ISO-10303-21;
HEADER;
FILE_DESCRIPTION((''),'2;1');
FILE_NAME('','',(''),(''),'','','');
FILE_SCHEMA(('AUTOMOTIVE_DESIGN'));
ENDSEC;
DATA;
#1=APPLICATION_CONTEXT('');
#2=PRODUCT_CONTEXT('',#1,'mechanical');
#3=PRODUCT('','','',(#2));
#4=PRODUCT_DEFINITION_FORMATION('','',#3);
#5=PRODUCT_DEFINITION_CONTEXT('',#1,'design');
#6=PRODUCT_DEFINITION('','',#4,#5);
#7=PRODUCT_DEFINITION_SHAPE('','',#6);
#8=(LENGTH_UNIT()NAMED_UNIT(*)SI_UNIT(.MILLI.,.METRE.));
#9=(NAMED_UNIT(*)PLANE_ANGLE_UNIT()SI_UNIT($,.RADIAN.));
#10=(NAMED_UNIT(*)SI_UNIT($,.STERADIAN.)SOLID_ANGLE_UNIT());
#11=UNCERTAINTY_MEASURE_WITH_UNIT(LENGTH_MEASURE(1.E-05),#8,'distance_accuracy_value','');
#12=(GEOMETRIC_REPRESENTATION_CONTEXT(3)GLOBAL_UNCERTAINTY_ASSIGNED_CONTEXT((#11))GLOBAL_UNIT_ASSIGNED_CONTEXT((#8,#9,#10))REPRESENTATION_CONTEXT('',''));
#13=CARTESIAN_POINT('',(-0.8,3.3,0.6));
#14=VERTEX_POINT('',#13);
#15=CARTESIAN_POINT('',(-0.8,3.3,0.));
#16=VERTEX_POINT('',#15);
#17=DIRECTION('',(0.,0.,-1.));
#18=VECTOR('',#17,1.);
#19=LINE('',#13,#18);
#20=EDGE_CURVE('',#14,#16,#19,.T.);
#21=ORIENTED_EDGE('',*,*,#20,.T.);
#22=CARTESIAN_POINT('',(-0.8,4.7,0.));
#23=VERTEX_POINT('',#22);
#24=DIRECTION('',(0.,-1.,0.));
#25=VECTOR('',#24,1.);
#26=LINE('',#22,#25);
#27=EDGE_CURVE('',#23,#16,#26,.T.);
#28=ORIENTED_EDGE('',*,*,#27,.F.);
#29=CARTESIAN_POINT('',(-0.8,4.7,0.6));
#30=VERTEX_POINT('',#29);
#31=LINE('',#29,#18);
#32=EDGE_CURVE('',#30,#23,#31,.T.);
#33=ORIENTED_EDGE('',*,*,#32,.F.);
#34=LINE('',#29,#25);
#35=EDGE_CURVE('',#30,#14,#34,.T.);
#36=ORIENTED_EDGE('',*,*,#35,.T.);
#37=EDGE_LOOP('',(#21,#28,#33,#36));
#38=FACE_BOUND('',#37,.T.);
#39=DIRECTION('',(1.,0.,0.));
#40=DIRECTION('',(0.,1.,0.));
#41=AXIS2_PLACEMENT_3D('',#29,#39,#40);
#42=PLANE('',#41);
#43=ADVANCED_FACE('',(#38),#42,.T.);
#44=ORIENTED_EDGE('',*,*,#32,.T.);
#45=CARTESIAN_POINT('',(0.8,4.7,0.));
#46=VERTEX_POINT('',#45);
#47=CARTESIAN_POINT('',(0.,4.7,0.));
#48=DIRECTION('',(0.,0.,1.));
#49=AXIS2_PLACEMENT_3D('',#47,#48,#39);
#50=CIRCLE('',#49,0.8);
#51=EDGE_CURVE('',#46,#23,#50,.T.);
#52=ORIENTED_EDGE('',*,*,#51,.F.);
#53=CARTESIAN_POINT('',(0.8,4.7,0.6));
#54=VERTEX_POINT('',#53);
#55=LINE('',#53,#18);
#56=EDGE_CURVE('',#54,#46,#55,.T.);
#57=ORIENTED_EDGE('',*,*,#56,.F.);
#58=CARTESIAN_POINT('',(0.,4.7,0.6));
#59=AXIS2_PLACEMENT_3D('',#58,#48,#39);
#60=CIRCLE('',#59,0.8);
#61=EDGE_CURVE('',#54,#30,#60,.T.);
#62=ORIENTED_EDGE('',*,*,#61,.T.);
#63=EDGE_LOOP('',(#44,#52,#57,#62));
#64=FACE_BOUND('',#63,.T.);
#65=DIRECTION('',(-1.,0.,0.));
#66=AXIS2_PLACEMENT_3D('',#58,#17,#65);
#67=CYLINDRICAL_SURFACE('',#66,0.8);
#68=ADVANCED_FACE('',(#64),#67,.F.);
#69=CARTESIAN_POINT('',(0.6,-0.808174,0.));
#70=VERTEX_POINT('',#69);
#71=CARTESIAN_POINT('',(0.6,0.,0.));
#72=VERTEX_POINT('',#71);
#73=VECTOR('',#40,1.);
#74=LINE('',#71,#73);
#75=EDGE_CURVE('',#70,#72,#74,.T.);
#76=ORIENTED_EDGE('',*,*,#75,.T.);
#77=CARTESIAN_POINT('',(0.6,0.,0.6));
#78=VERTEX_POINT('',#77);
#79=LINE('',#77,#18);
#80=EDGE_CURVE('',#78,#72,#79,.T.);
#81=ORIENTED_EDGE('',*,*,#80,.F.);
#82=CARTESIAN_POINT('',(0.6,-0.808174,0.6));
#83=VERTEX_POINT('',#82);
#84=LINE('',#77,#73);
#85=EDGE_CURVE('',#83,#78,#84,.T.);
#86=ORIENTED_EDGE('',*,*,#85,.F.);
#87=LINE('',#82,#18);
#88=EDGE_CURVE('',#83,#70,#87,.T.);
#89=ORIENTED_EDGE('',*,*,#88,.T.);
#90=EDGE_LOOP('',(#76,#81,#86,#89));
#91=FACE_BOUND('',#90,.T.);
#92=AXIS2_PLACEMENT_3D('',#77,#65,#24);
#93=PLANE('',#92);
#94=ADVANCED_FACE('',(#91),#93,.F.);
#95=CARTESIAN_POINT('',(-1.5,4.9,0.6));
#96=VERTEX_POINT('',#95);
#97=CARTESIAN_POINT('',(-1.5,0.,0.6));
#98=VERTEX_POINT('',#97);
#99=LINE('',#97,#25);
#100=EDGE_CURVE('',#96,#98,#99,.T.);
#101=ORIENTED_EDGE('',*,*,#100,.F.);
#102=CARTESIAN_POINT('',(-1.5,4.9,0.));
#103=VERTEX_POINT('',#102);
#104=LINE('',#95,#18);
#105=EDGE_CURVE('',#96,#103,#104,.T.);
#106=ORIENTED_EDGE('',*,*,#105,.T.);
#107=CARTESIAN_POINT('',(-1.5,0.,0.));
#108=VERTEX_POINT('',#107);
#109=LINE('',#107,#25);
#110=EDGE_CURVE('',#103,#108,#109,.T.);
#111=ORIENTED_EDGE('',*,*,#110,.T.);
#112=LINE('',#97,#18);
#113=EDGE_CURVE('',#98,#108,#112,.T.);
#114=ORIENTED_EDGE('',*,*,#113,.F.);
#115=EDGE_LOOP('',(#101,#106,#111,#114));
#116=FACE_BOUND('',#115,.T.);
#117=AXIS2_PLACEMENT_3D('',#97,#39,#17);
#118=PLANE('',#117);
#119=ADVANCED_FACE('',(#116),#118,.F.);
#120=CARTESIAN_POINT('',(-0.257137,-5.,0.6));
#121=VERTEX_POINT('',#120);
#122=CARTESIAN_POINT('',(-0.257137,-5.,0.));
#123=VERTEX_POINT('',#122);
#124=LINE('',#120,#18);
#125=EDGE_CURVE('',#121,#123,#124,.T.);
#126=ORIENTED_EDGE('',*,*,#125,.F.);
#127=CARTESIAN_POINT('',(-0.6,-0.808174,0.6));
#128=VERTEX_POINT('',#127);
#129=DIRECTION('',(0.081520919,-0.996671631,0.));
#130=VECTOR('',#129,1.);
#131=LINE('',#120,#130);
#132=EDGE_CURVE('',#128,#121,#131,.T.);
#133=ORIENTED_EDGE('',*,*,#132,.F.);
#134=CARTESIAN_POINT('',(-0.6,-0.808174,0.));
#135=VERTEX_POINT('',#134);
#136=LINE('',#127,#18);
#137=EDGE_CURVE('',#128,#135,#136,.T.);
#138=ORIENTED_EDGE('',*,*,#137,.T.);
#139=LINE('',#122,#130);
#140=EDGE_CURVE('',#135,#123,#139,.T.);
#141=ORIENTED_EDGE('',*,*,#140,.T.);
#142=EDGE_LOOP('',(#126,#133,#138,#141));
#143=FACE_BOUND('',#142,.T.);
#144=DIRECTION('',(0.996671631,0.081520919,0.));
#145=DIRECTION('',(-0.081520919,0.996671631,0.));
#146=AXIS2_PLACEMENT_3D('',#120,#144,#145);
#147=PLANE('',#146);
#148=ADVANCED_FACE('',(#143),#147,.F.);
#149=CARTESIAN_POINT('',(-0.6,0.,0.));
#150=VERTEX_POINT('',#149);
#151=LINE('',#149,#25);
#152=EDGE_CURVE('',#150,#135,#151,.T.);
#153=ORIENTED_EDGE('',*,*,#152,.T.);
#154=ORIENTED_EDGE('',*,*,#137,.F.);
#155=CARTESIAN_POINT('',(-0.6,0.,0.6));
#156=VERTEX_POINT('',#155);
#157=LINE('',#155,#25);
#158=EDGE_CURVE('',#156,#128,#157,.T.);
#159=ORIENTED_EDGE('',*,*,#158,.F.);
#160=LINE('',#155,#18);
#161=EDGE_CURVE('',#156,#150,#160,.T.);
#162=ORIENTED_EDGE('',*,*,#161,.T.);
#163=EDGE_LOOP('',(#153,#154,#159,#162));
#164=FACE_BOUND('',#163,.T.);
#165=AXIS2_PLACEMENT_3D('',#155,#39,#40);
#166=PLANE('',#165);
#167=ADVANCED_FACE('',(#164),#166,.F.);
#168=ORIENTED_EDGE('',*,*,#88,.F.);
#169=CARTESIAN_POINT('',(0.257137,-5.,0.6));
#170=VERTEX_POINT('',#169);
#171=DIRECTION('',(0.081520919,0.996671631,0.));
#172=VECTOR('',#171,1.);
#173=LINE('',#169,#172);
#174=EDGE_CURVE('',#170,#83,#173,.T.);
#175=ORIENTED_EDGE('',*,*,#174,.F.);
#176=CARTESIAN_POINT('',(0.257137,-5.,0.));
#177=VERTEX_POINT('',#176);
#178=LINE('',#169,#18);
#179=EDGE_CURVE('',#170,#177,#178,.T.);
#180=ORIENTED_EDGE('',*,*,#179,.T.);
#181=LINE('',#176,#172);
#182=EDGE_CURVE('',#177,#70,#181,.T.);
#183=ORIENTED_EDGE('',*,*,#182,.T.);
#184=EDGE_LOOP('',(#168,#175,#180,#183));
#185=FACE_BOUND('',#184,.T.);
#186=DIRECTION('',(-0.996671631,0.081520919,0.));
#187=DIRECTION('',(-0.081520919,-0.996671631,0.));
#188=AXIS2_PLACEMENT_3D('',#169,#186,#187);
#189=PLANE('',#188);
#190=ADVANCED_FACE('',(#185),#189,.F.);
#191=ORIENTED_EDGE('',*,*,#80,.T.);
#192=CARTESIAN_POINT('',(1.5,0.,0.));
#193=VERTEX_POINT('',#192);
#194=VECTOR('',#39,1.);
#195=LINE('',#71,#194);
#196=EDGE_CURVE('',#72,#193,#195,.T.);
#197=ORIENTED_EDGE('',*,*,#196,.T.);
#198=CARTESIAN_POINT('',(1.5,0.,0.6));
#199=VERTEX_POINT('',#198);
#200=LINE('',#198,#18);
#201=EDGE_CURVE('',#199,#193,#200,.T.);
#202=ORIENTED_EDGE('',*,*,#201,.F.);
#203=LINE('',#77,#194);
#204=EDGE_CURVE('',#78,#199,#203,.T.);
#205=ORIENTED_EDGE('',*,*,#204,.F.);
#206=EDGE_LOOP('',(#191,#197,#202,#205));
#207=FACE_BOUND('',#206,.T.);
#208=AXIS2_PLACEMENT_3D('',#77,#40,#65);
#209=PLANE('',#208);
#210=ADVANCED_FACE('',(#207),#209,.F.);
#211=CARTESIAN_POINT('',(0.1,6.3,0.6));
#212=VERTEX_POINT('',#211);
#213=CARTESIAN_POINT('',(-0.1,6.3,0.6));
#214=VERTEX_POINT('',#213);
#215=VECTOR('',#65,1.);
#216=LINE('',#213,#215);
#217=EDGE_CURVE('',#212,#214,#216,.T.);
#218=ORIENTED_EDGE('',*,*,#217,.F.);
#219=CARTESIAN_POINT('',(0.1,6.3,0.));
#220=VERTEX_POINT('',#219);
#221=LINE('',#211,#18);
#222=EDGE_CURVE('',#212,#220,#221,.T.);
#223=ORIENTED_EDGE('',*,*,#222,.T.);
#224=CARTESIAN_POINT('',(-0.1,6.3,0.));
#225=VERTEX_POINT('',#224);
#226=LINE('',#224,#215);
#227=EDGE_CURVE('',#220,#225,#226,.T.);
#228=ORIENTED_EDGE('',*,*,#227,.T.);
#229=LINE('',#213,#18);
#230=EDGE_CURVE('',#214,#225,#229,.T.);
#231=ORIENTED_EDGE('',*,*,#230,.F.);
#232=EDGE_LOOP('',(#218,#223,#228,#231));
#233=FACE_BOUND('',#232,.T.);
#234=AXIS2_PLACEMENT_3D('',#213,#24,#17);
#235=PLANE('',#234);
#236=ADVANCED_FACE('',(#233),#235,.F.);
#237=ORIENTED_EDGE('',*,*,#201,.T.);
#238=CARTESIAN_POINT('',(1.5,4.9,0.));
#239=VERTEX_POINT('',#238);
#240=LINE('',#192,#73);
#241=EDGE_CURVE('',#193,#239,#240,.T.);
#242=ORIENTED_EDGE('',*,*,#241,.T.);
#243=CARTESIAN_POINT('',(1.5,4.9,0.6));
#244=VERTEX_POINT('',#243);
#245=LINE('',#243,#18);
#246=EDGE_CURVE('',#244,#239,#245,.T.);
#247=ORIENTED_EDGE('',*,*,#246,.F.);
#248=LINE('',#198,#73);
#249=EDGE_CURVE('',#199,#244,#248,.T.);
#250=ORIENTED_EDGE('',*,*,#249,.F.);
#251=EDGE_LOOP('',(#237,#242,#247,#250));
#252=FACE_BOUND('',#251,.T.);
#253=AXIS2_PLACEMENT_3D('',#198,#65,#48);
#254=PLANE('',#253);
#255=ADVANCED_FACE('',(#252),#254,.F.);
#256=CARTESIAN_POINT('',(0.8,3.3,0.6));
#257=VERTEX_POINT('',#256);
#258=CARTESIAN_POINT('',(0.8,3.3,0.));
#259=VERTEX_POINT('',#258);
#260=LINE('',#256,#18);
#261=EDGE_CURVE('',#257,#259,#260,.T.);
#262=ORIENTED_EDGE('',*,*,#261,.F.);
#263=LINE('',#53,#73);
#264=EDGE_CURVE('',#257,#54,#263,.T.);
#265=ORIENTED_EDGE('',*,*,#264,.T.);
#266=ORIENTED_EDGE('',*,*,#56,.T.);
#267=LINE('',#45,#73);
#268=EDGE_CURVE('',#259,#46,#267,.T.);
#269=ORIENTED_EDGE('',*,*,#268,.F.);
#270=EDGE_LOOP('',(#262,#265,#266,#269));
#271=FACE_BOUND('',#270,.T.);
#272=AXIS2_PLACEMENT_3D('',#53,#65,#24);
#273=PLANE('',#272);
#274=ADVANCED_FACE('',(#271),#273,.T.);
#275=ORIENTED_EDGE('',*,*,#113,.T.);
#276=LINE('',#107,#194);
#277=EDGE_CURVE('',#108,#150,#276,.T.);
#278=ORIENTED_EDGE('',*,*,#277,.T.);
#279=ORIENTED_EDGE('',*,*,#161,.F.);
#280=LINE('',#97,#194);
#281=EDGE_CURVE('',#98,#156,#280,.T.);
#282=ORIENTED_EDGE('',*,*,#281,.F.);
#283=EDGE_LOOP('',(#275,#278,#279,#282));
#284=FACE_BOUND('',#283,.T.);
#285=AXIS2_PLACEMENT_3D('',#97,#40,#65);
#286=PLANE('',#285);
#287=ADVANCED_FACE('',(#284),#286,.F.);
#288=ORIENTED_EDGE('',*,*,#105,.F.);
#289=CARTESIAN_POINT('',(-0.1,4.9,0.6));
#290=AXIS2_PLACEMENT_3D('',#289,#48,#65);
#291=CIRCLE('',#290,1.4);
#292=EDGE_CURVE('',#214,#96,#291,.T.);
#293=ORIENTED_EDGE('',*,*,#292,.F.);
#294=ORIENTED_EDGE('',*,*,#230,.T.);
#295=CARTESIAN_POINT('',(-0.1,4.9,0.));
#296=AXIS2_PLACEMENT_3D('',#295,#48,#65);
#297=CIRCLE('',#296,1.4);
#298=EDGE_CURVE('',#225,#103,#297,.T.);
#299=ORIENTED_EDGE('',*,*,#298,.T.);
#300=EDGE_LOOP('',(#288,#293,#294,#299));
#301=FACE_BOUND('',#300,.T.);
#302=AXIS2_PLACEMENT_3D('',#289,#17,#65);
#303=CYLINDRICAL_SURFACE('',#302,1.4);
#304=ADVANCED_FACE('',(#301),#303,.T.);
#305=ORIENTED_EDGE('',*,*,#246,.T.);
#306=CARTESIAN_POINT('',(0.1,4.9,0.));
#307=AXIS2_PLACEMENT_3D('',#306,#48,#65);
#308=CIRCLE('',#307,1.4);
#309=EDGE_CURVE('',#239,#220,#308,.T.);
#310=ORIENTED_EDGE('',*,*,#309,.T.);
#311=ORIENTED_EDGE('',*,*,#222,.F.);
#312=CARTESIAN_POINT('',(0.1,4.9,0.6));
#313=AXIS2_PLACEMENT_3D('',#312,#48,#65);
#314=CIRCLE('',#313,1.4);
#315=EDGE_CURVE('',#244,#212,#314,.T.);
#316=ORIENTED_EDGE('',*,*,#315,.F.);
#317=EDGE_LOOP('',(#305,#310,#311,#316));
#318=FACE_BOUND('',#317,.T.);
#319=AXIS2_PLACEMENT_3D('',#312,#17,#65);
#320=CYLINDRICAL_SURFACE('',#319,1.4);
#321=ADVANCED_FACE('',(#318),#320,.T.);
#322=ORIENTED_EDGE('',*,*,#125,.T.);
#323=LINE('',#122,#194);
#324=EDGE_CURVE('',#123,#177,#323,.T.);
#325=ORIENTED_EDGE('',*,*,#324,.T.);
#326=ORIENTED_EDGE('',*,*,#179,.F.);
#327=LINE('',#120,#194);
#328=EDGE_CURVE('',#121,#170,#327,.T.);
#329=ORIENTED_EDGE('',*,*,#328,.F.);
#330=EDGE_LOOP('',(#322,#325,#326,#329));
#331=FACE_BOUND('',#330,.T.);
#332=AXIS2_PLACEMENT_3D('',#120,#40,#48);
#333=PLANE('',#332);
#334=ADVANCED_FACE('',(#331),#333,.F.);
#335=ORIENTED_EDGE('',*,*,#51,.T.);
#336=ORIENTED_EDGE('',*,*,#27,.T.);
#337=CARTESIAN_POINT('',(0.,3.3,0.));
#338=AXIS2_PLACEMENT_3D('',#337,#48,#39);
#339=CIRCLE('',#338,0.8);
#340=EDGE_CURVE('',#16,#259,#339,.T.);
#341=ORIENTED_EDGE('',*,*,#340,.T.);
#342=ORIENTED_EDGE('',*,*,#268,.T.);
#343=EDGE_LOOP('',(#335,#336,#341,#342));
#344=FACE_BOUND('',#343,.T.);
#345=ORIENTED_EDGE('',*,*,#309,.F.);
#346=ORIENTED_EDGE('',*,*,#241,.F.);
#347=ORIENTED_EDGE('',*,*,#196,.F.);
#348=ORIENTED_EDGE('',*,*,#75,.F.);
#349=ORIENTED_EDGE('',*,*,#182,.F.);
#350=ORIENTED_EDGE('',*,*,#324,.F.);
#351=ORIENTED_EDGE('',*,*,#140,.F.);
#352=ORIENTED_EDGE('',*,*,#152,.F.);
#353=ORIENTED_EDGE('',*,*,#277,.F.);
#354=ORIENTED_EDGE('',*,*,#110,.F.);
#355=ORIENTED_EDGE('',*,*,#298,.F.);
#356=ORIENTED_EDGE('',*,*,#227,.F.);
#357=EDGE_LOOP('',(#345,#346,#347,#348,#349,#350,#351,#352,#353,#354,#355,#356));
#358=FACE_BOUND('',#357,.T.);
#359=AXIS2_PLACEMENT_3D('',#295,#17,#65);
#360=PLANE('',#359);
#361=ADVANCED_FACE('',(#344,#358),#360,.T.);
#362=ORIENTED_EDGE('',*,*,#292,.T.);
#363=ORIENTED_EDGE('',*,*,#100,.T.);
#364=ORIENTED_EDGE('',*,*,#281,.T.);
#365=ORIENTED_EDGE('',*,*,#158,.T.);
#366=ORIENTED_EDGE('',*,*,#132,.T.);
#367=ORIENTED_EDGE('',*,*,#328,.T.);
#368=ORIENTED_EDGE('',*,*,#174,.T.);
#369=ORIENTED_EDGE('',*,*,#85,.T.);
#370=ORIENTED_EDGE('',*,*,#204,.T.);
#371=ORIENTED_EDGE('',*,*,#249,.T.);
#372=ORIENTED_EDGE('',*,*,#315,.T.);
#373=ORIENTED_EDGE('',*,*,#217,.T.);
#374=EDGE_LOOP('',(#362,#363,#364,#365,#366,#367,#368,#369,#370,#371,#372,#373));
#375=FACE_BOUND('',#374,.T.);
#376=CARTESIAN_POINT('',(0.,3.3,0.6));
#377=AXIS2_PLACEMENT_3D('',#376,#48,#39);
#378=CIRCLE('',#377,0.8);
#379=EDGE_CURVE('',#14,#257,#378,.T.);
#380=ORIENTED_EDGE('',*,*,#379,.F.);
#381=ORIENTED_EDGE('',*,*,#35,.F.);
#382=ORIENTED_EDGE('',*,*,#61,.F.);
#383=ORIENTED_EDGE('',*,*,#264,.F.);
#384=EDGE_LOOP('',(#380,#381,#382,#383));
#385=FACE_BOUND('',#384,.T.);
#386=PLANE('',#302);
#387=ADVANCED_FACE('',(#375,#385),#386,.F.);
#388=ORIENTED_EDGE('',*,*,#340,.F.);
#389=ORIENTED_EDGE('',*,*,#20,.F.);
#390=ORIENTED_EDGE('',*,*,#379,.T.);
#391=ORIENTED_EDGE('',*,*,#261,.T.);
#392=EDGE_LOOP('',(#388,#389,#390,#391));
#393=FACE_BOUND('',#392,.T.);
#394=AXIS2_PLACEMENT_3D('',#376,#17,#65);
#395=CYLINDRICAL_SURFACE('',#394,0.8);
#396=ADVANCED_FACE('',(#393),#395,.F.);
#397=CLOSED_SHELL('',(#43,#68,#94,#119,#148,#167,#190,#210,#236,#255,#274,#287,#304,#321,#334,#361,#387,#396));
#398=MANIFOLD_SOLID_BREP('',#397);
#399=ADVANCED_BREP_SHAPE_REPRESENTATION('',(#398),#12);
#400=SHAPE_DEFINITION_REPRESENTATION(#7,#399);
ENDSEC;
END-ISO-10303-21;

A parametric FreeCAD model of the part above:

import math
import FreeCAD as App
import Part
import Sketcher

doc = App.newDocument("Part")
params = doc.addObject("Spreadsheet::Sheet", "Params")
for row, (alias, value) in enumerate([
    ("sketch1_radius", "1.4 mm"),
    ("sketch1_radius2", "0.8 mm"),
    ("sketch1_width", "0.9 mm"),
    ("sketch1_width2", "0.2 mm"),
    ("sketch1_height", "4.9 mm"),
    ("pad1_length", "0.6 mm"),
], start=1):
    params.set(f"A{row}", alias)
    params.set(f"B{row}", "=" + value)
    params.setAlias(f"B{row}", alias)

body = doc.addObject("PartDesign::Body", "Body")

sketch1 = doc.addObject("Sketcher::SketchObject", "Sketch")
body.addObject(sketch1)
sketch1.AttachmentSupport = (doc.XY_Plane, [""])
sketch1.MapMode = "FlatFace"
sketch1.addGeometry([
    Part.LineSegment(App.Vector(-1.5, 0, 0), App.Vector(-0.6, 0, 0)),
    Part.LineSegment(App.Vector(-0.6, 0, 0), App.Vector(-0.6, -0.808174, 0)),
    Part.LineSegment(App.Vector(-0.6, -0.808174, 0), App.Vector(-0.257137, -5, 0)),
    Part.LineSegment(App.Vector(-0.257137, -5, 0), App.Vector(0.257137, -5, 0)),
    Part.LineSegment(App.Vector(0.257137, -5, 0), App.Vector(0.6, -0.808174, 0)),
    Part.LineSegment(App.Vector(0.6, -0.808174, 0), App.Vector(0.6, 0, 0)),
    Part.LineSegment(App.Vector(0.6, 0, 0), App.Vector(1.5, 0, 0)),
    Part.LineSegment(App.Vector(1.5, 0, 0), App.Vector(1.5, 4.9, 0)),
    Part.ArcOfCircle(Part.Circle(App.Vector(0.1, 4.9, 0), App.Vector(0, 0, 1), 1.4), math.radians(0), math.radians(90)),
    Part.LineSegment(App.Vector(0.1, 6.3, 0), App.Vector(-0.1, 6.3, 0)),
    Part.ArcOfCircle(Part.Circle(App.Vector(-0.1, 4.9, 0), App.Vector(0, 0, 1), 1.4), math.radians(90), math.radians(180)),
    Part.LineSegment(App.Vector(-1.5, 4.9, 0), App.Vector(-1.5, 0, 0)),
    Part.ArcOfCircle(Part.Circle(App.Vector(0, 4.7, 0), App.Vector(0, 0, 1), 0.8), math.radians(0), math.radians(180)),
    Part.LineSegment(App.Vector(0.8, 4.7, 0), App.Vector(0.8, 3.3, 0)),
    Part.ArcOfCircle(Part.Circle(App.Vector(0, 3.3, 0), App.Vector(0, 0, 1), 0.8), math.radians(180), math.radians(360)),
    Part.LineSegment(App.Vector(-0.8, 3.3, 0), App.Vector(-0.8, 4.7, 0)),
], False)
sketch1.addConstraint([
    Sketcher.Constraint("Coincident", 0, 2, 1, 1),
    Sketcher.Constraint("Coincident", 1, 2, 2, 1),
    Sketcher.Constraint("Coincident", 2, 2, 3, 1),
    Sketcher.Constraint("Coincident", 3, 2, 4, 1),
    Sketcher.Constraint("Coincident", 4, 2, 5, 1),
    Sketcher.Constraint("Coincident", 5, 2, 6, 1),
    Sketcher.Constraint("Coincident", 6, 2, 7, 1),
    Sketcher.Constraint("Tangent", 7, 2, 8, 1),
    Sketcher.Constraint("Tangent", 8, 2, 9, 1),
    Sketcher.Constraint("Tangent", 9, 2, 10, 1),
    Sketcher.Constraint("Tangent", 10, 2, 11, 1),
    Sketcher.Constraint("Coincident", 11, 2, 0, 1),
    Sketcher.Constraint("Tangent", 12, 1, 13, 1),
    Sketcher.Constraint("Tangent", 13, 2, 14, 2),
    Sketcher.Constraint("Tangent", 14, 1, 15, 1),
    Sketcher.Constraint("Tangent", 15, 2, 12, 2),
    Sketcher.Constraint("Horizontal", 0),
    Sketcher.Constraint("Vertical", 1),
    Sketcher.Constraint("Horizontal", 3),
    Sketcher.Constraint("Vertical", 5),
    Sketcher.Constraint("Horizontal", 6),
    Sketcher.Constraint("Vertical", 7),
    Sketcher.Constraint("Horizontal", 9),
    Sketcher.Constraint("Vertical", 11),
    Sketcher.Constraint("Vertical", 13),
    Sketcher.Constraint("Vertical", 15),
    Sketcher.Constraint("Equal", 8, 10),
    Sketcher.Constraint("Symmetric", 0, 2, 5, 2, -1, 1),
    Sketcher.Constraint("Symmetric", 6, 2, 11, 2, -2),
    Sketcher.Constraint("PointOnObject", 12, 3, -2),
    Sketcher.Constraint("Horizontal", 1, 2, 4, 2),
    Sketcher.Constraint("Equal", 2, 4),
    Sketcher.Constraint("Radius", 8, 1.4),
    Sketcher.Constraint("Radius", 12, 0.8),
    Sketcher.Constraint("DistanceX", 0, 1, 0, 2, 0.9),
    Sketcher.Constraint("DistanceX", 9, 2, 9, 1, 0.2),
    Sketcher.Constraint("DistanceY", 7, 1, 7, 2, 4.9),
    Sketcher.Constraint("DistanceY", 13, 2, 13, 1, 1.4),
    Sketcher.Constraint("DistanceY", 2, 2, -1, 1, 5.0),
    Sketcher.Constraint("DistanceY", 14, 3, 8, 2, 3.0),
    Sketcher.Constraint("DistanceX", 3, 1, 3, 2, 0.514275),
    Sketcher.Constraint("DistanceY", 1, 2, 1, 1, 0.808174),
])
sketch1.setExpression("Constraints[32]", "Params.sketch1_radius")
sketch1.setExpression("Constraints[33]", "Params.sketch1_radius2")
sketch1.setExpression("Constraints[34]", "Params.sketch1_width")
sketch1.setExpression("Constraints[35]", "Params.sketch1_width2")
sketch1.setExpression("Constraints[36]", "Params.sketch1_height")
pad1 = doc.addObject("PartDesign::Pad", "Pad")
body.addObject(pad1)
pad1.Profile = sketch1
pad1.setExpression("Length", "Params.pad1_length")

doc.recompute()
